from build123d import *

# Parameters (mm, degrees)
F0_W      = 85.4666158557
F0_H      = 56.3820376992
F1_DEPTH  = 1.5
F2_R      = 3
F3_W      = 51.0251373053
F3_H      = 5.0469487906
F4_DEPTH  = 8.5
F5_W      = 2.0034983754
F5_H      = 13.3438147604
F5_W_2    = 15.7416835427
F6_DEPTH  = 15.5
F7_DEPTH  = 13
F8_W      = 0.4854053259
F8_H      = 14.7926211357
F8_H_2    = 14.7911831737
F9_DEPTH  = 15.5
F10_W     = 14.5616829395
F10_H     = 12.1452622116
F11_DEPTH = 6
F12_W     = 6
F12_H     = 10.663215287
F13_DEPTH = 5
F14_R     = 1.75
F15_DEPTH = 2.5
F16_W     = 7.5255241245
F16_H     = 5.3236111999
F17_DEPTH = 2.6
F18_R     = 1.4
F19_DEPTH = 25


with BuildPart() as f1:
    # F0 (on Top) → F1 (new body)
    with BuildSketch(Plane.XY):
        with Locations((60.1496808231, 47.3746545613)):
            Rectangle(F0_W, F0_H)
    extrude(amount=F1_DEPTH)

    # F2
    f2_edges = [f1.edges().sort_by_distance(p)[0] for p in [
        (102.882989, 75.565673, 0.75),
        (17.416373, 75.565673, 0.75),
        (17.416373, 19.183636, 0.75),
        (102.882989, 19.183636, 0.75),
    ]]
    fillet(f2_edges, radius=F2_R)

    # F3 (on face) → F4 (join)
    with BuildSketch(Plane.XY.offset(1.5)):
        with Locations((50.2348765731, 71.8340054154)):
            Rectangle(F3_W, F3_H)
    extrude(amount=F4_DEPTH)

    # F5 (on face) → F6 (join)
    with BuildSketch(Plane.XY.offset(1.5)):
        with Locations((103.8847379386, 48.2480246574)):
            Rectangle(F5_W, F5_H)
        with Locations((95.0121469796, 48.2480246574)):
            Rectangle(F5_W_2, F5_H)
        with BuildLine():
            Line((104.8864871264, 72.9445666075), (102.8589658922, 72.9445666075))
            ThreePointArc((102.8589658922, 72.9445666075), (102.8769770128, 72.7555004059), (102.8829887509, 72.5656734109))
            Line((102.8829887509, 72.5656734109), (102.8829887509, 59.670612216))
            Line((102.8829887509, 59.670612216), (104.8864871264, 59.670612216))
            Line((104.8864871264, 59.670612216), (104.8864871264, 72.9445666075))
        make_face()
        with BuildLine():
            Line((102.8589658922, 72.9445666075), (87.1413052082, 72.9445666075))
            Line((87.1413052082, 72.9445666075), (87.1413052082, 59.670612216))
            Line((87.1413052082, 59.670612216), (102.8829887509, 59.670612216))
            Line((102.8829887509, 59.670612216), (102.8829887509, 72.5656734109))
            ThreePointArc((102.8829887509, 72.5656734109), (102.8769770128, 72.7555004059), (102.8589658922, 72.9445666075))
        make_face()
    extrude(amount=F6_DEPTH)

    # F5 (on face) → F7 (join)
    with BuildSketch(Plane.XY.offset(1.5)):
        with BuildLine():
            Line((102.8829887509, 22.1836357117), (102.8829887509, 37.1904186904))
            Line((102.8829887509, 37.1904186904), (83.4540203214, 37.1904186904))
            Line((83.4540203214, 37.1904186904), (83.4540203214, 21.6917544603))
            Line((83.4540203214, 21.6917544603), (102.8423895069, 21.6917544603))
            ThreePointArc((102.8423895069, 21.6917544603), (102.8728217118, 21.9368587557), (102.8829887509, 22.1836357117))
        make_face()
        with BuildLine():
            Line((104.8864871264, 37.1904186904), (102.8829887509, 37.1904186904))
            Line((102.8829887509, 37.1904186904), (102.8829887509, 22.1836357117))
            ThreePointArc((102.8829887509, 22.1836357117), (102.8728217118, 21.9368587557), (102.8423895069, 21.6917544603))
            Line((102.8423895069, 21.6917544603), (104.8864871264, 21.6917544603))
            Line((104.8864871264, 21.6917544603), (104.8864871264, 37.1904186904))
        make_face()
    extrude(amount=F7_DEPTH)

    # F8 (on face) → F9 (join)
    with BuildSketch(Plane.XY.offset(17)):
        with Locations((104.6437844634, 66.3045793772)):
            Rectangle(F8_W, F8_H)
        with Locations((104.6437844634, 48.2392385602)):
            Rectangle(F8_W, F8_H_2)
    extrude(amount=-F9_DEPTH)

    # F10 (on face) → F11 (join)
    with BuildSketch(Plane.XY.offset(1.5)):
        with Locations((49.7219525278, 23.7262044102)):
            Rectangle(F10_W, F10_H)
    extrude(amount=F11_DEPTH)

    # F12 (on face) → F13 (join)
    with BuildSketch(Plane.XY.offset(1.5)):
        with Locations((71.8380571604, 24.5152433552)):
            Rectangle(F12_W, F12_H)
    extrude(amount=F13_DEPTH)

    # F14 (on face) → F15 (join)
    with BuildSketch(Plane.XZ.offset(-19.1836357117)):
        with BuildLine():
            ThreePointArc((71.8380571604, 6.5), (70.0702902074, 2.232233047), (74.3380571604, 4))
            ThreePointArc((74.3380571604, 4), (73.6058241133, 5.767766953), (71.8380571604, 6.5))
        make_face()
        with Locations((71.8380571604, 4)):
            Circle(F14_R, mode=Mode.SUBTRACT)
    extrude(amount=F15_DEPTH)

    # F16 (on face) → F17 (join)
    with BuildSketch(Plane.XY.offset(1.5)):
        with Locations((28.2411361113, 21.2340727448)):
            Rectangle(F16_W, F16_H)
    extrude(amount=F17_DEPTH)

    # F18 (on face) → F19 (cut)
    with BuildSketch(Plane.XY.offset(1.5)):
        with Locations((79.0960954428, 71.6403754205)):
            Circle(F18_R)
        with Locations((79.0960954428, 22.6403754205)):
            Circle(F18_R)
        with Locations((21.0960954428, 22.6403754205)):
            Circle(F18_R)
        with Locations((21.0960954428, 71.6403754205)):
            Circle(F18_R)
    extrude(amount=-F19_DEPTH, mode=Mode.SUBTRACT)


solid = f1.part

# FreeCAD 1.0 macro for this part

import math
import FreeCAD as App
import Part
import Sketcher
Q = App.Units.Quantity


def edges_at(feature, points):
    """Names of the edges that pass closest to the given points."""
    edges = feature.Shape.Edges
    near = lambda p: min(range(len(edges)), key=lambda i: edges[i].distToShape(Part.Vertex(*p))[0])
    return sorted({f"Edge{near(p) + 1}" for p in points})


def add_polygon(sketch, points):
    """Adds a closed chain of lines whose ends are joined by coincident constraints."""
    first, n = sketch.GeometryCount, len(points)
    for a, b in zip(points, points[1:] + points[:1]):
        sketch.addGeometry(Part.LineSegment(App.Vector(*a, 0), App.Vector(*b, 0)), False)
    for i in range(n):
        sketch.addConstraint(Sketcher.Constraint("Coincident", first + i, 2, first + (i + 1) % n, 1))

doc = App.newDocument("Part")
body = doc.addObject("PartDesign::Body", "Body")

# Sketch on XY plane
sketch1 = body.newObject("Sketcher::SketchObject", "Sketch")
sketch1.AttachmentSupport = (doc.getObject("XY_Plane"), [""])
sketch1.MapMode = "FlatFace"
add_polygon(sketch1, [(17.416373, 75.565673), (17.416373, 19.183636), (102.882989, 19.183636), (102.882989, 75.565673)])  # lines 0-3
sketch1.addConstraint([
    Sketcher.Constraint("Vertical", 0),
    Sketcher.Constraint("Horizontal", 1),
    Sketcher.Constraint("Vertical", 2),
    Sketcher.Constraint("Horizontal", 3),
    Sketcher.Constraint("DistanceX", 1, 1, 1, 2, Q("85.466616 mm")),
    Sketcher.Constraint("DistanceY", 0, 2, 0, 1, Q("56.382038 mm")),
    Sketcher.Constraint("DistanceX", -1, 1, 1, 2, Q("102.882989 mm")),
    Sketcher.Constraint("DistanceY", -1, 1, 0, 2, Q("19.183636 mm")),
])
pad1 = body.newObject("PartDesign::Pad", "Pad")
pad1.Profile = sketch1
pad1.Length = 1.5
doc.recompute()

fillet = body.newObject("PartDesign::Fillet", "Fillet")
fillet.Base = (pad1, edges_at(pad1, [
    (102.883, 75.566, 0.75),
    (17.416, 75.566, 0.75),
    (17.416, 19.184, 0.75),
    (102.883, 19.184, 0.75),
]))
fillet.Radius = 3

# Sketch on XY plane
sketch2 = body.newObject("Sketcher::SketchObject", "Sketch001")
sketch2.AttachmentSupport = (doc.getObject("XY_Plane"), [""])
sketch2.MapMode = "FlatFace"
sketch2.AttachmentOffset = App.Placement(App.Vector(0, 0, 1.5), App.Rotation())
add_polygon(sketch2, [(24.722308, 74.35748), (24.722308, 69.310531), (75.747445, 69.310531), (75.747445, 74.35748)])  # lines 0-3
sketch2.addConstraint([
    Sketcher.Constraint("Vertical", 0),
    Sketcher.Constraint("Horizontal", 1),
    Sketcher.Constraint("Vertical", 2),
    Sketcher.Constraint("Horizontal", 3),
    Sketcher.Constraint("DistanceY", 0, 2, 0, 1, Q("5.046949 mm")),
    Sketcher.Constraint("DistanceX", 1, 1, 1, 2, Q("51.025137 mm")),
    Sketcher.Constraint("DistanceY", -1, 1, 0, 2, Q("69.310531 mm")),
    Sketcher.Constraint("DistanceX", -1, 1, 0, 2, Q("24.722308 mm")),
])
pad2 = body.newObject("PartDesign::Pad", "Pad001")
pad2.Profile = sketch2
pad2.Length = 8.5

# Sketch on XY plane
sketch3 = body.newObject("Sketcher::SketchObject", "Sketch002")
sketch3.AttachmentSupport = (doc.getObject("XY_Plane"), [""])
sketch3.MapMode = "FlatFace"
sketch3.AttachmentOffset = App.Placement(App.Vector(0, 0, 1.5), App.Rotation())
add_polygon(sketch3, [(104.886487, 41.576117), (104.886487, 54.919932), (87.141305, 54.919932), (87.141305, 41.576117)])  # lines 0-3
add_polygon(sketch3, [(104.886487, 72.944567), (87.141305, 72.944567), (87.141305, 59.670612), (104.886487, 59.670612)])  # lines 4-7
sketch3.addConstraint([
    Sketcher.Constraint("Vertical", 0),
    Sketcher.Constraint("Horizontal", 1),
    Sketcher.Constraint("Vertical", 2),
    Sketcher.Constraint("Horizontal", 3),
    Sketcher.Constraint("Horizontal", 4),
    Sketcher.Constraint("Vertical", 5),
    Sketcher.Constraint("Horizontal", 6),
    Sketcher.Constraint("Vertical", 7),
    Sketcher.Constraint("Vertical", 2, 2, 4, 2),
    Sketcher.Constraint("Vertical", 3, 2, 6, 2),
    Sketcher.Constraint("DistanceX", 1, 2, 1, 1, Q("17.745182 mm")),
    Sketcher.Constraint("DistanceY", 0, 1, 0, 2, Q("13.343815 mm")),
    Sketcher.Constraint("DistanceY", 5, 2, 5, 1, Q("13.273954 mm")),
    Sketcher.Constraint("DistanceY", 2, 2, 4, 2, Q("31.368449 mm")),
    Sketcher.Constraint("DistanceX", -1, 1, 0, 2, Q("104.886487 mm")),
    Sketcher.Constraint("DistanceY", -1, 1, 0, 2, Q("54.919932 mm")),
])
pad3 = body.newObject("PartDesign::Pad", "Pad002")
pad3.Profile = sketch3
pad3.Length = 15.5

# Sketch on XY plane
sketch4 = body.newObject("Sketcher::SketchObject", "Sketch003")
sketch4.AttachmentSupport = (doc.getObject("XY_Plane"), [""])
sketch4.MapMode = "FlatFace"
sketch4.AttachmentOffset = App.Placement(App.Vector(0, 0, 1.5), App.Rotation())
add_polygon(sketch4, [(83.45402, 37.190419), (83.45402, 21.691754), (104.886487, 21.691754), (104.886487, 37.190419)])  # lines 0-3
sketch4.addConstraint([
    Sketcher.Constraint("Vertical", 0),
    Sketcher.Constraint("Horizontal", 1),
    Sketcher.Constraint("Vertical", 2),
    Sketcher.Constraint("Horizontal", 3),
    Sketcher.Constraint("DistanceX", 1, 1, 1, 2, Q("21.432467 mm")),
    Sketcher.Constraint("DistanceY", 0, 2, 0, 1, Q("15.498664 mm")),
    Sketcher.Constraint("DistanceX", -1, 1, 0, 2, Q("83.45402 mm")),
    Sketcher.Constraint("DistanceY", -1, 1, 2, 2, Q("37.190419 mm")),
])
pad4 = body.newObject("PartDesign::Pad", "Pad003")
pad4.Profile = sketch4
pad4.Length = 13

# Sketch on XY plane
sketch5 = body.newObject("Sketcher::SketchObject", "Sketch004")
sketch5.AttachmentSupport = (doc.getObject("XY_Plane"), [""])
sketch5.MapMode = "FlatFace"
sketch5.AttachmentOffset = App.Placement(App.Vector(0, 0, 17), App.Rotation())
add_polygon(sketch5, [(104.401082, 73.70089), (104.401082, 58.908269), (104.886487, 58.908269), (104.886487, 73.70089)])  # lines 0-3
add_polygon(sketch5, [(104.401082, 55.63483), (104.401082, 40.843647), (104.886487, 40.843647), (104.886487, 55.63483)])  # lines 4-7
sketch5.addConstraint([
    Sketcher.Constraint("Vertical", 0),
    Sketcher.Constraint("Horizontal", 1),
    Sketcher.Constraint("Vertical", 2),
    Sketcher.Constraint("Horizontal", 3),
    Sketcher.Constraint("Vertical", 4),
    Sketcher.Constraint("Horizontal", 5),
    Sketcher.Constraint("Vertical", 6),
    Sketcher.Constraint("Horizontal", 7),
    Sketcher.Constraint("Vertical", 3, 2, 4, 2),
    Sketcher.Constraint("Vertical", 2, 2, 5, 2),
    Sketcher.Constraint("DistanceY", 0, 2, 0, 1, Q("14.792621 mm")),
    Sketcher.Constraint("DistanceX", 1, 1, 1, 2, Q("0.485405 mm")),
    Sketcher.Constraint("DistanceY", 4, 2, 4, 1, Q("14.791183 mm")),
    Sketcher.Constraint("DistanceX", -1, 1, 0, 2, Q("104.401082 mm")),
    Sketcher.Constraint("DistanceY", -1, 1, 0, 2, Q("58.908269 mm")),
    Sketcher.Constraint("DistanceY", -1, 1, 6, 2, Q("55.63483 mm")),
])
pad5 = body.newObject("PartDesign::Pad", "Pad004")
pad5.Profile = sketch5
pad5.Length = 15.5
pad5.Reversed = True

# Sketch on XY plane
sketch6 = body.newObject("Sketcher::SketchObject", "Sketch005")
sketch6.AttachmentSupport = (doc.getObject("XY_Plane"), [""])
sketch6.MapMode = "FlatFace"
sketch6.AttachmentOffset = App.Placement(App.Vector(0, 0, 1.5), App.Rotation())
add_polygon(sketch6, [(42.441111, 29.798836), (42.441111, 17.653573), (57.002794, 17.653573), (57.002794, 29.798836)])  # lines 0-3
sketch6.addConstraint([
    Sketcher.Constraint("Vertical", 0),
    Sketcher.Constraint("Horizontal", 1),
    Sketcher.Constraint("Vertical", 2),
    Sketcher.Constraint("Horizontal", 3),
    Sketcher.Constraint("DistanceX", 1, 1, 1, 2, Q("14.561683 mm")),
    Sketcher.Constraint("DistanceY", 0, 2, 0, 1, Q("12.145262 mm")),
    Sketcher.Constraint("DistanceX", -1, 1, 0, 2, Q("42.441111 mm")),
    Sketcher.Constraint("DistanceY", -1, 1, 0, 2, Q("17.653573 mm")),
])
pad6 = body.newObject("PartDesign::Pad", "Pad005")
pad6.Profile = sketch6
pad6.Length = 6

# Sketch on XY plane
sketch7 = body.newObject("Sketcher::SketchObject", "Sketch006")
sketch7.AttachmentSupport = (doc.getObject("XY_Plane"), [""])
sketch7.MapMode = "FlatFace"
sketch7.AttachmentOffset = App.Placement(App.Vector(0, 0, 1.5), App.Rotation())
add_polygon(sketch7, [(68.838057, 29.846851), (68.838057, 19.183636), (74.838057, 19.183636), (74.838057, 29.846851)])  # lines 0-3
sketch7.addConstraint([
    Sketcher.Constraint("Vertical", 0),
    Sketcher.Constraint("Horizontal", 1),
    Sketcher.Constraint("Vertical", 2),
    Sketcher.Constraint("Horizontal", 3),
    Sketcher.Constraint("DistanceX", 1, 1, 1, 2, Q("6 mm")),
    Sketcher.Constraint("DistanceY", 0, 2, 0, 1, Q("10.663215 mm")),
    Sketcher.Constraint("DistanceY", -1, 1, 2, 2, Q("29.846851 mm")),
    Sketcher.Constraint("DistanceX", -1, 1, 0, 2, Q("68.838057 mm")),
])
pad7 = body.newObject("PartDesign::Pad", "Pad006")
pad7.Profile = sketch7
pad7.Length = 5

# Sketch on XZ plane
sketch8 = body.newObject("Sketcher::SketchObject", "Sketch007")
sketch8.AttachmentSupport = (doc.getObject("XZ_Plane"), [""])
sketch8.MapMode = "FlatFace"
sketch8.AttachmentOffset = App.Placement(App.Vector(0, 0, -19.183636), App.Rotation())
sketch8.addGeometry([
    Part.ArcOfCircle(Part.Circle(App.Vector(71.838057, 4, 0), App.Vector(0, 0, 1), 2.5), math.radians(90), math.radians(360)),
    Part.ArcOfCircle(Part.Circle(App.Vector(71.838057, 4, 0), App.Vector(0, 0, 1), 2.5), math.radians(0), math.radians(90)),
    Part.Circle(App.Vector(71.838057, 4, 0), App.Vector(0, 0, 1), 1.75),
], False)
sketch8.addConstraint([
    Sketcher.Constraint("Tangent", 0, 1, 1, 2),
    Sketcher.Constraint("Coincident", 1, 1, 0, 2),
    Sketcher.Constraint("Coincident", 2, 3, 0, 3),
    Sketcher.Constraint("Horizontal", 2, 3, 1, 1),
    Sketcher.Constraint("Vertical", 2, 3, 0, 1),
    Sketcher.Constraint("Diameter", 2, Q("3.5 mm")),
    Sketcher.Constraint("Radius", 0, Q("2.5 mm")),
    Sketcher.Constraint("DistanceY", -1, 1, 0, 3, Q("4 mm")),
    Sketcher.Constraint("DistanceX", -1, 1, 0, 3, Q("71.838057 mm")),
])
pad8 = body.newObject("PartDesign::Pad", "Pad007")
pad8.Profile = sketch8
pad8.Length = 2.5

# Sketch on XY plane
sketch9 = body.newObject("Sketcher::SketchObject", "Sketch008")
sketch9.AttachmentSupport = (doc.getObject("XY_Plane"), [""])
sketch9.MapMode = "FlatFace"
sketch9.AttachmentOffset = App.Placement(App.Vector(0, 0, 1.5), App.Rotation())
add_polygon(sketch9, [(24.478374, 23.895878), (24.478374, 18.572267), (32.003898, 18.572267), (32.003898, 23.895878)])  # lines 0-3
sketch9.addConstraint([
    Sketcher.Constraint("Vertical", 0),
    Sketcher.Constraint("Horizontal", 1),
    Sketcher.Constraint("Vertical", 2),
    Sketcher.Constraint("Horizontal", 3),
    Sketcher.Constraint("DistanceY", 0, 2, 0, 1, Q("5.323611 mm")),
    Sketcher.Constraint("DistanceX", -1, 1, 1, 2, Q("32.003898 mm")),
    Sketcher.Constraint("DistanceX", 1, 1, 1, 2, Q("7.525524 mm")),
    Sketcher.Constraint("DistanceY", -1, 1, 2, 2, Q("23.895878 mm")),
])
pad9 = body.newObject("PartDesign::Pad", "Pad008")
pad9.Profile = sketch9
pad9.Length = 2.6

# Sketch on XY plane
sketch10 = body.newObject("Sketcher::SketchObject", "Sketch009")
sketch10.AttachmentSupport = (doc.getObject("XY_Plane"), [""])
sketch10.MapMode = "FlatFace"
sketch10.AttachmentOffset = App.Placement(App.Vector(0, 0, 1.5), App.Rotation())
sketch10.addGeometry([
    Part.Circle(App.Vector(79.096095, 71.640375, 0), App.Vector(0, 0, 1), 1.4),
    Part.Circle(App.Vector(79.096095, 22.640375, 0), App.Vector(0, 0, 1), 1.4),
    Part.Circle(App.Vector(21.096095, 22.640375, 0), App.Vector(0, 0, 1), 1.4),
    Part.Circle(App.Vector(21.096095, 71.640375, 0), App.Vector(0, 0, 1), 1.4),
], False)
sketch10.addConstraint([
    Sketcher.Constraint("Equal", 0, 1),
    Sketcher.Constraint("Equal", 1, 2),
    Sketcher.Constraint("Equal", 2, 3),
    Sketcher.Constraint("Horizontal", 1, 3, 2, 3),
    Sketcher.Constraint("Horizontal", 0, 3, 3, 3),
    Sketcher.Constraint("Vertical", 0, 3, 1, 3),
    Sketcher.Constraint("Vertical", 2, 3, 3, 3),
    Sketcher.Constraint("Diameter", 0, Q("2.8 mm")),
    Sketcher.Constraint("DistanceY", 1, 3, 0, 3, Q("49 mm")),
    Sketcher.Constraint("DistanceX", 2, 3, 1, 3, Q("58 mm")),
    Sketcher.Constraint("DistanceX", -1, 1, 0, 3, Q("79.096095 mm")),
    Sketcher.Constraint("DistanceY", -1, 1, 0, 3, Q("71.640375 mm")),
])
pocket1 = body.newObject("PartDesign::Pocket", "Pocket")
pocket1.Profile = sketch10
pocket1.Length = 25

doc.recompute()
